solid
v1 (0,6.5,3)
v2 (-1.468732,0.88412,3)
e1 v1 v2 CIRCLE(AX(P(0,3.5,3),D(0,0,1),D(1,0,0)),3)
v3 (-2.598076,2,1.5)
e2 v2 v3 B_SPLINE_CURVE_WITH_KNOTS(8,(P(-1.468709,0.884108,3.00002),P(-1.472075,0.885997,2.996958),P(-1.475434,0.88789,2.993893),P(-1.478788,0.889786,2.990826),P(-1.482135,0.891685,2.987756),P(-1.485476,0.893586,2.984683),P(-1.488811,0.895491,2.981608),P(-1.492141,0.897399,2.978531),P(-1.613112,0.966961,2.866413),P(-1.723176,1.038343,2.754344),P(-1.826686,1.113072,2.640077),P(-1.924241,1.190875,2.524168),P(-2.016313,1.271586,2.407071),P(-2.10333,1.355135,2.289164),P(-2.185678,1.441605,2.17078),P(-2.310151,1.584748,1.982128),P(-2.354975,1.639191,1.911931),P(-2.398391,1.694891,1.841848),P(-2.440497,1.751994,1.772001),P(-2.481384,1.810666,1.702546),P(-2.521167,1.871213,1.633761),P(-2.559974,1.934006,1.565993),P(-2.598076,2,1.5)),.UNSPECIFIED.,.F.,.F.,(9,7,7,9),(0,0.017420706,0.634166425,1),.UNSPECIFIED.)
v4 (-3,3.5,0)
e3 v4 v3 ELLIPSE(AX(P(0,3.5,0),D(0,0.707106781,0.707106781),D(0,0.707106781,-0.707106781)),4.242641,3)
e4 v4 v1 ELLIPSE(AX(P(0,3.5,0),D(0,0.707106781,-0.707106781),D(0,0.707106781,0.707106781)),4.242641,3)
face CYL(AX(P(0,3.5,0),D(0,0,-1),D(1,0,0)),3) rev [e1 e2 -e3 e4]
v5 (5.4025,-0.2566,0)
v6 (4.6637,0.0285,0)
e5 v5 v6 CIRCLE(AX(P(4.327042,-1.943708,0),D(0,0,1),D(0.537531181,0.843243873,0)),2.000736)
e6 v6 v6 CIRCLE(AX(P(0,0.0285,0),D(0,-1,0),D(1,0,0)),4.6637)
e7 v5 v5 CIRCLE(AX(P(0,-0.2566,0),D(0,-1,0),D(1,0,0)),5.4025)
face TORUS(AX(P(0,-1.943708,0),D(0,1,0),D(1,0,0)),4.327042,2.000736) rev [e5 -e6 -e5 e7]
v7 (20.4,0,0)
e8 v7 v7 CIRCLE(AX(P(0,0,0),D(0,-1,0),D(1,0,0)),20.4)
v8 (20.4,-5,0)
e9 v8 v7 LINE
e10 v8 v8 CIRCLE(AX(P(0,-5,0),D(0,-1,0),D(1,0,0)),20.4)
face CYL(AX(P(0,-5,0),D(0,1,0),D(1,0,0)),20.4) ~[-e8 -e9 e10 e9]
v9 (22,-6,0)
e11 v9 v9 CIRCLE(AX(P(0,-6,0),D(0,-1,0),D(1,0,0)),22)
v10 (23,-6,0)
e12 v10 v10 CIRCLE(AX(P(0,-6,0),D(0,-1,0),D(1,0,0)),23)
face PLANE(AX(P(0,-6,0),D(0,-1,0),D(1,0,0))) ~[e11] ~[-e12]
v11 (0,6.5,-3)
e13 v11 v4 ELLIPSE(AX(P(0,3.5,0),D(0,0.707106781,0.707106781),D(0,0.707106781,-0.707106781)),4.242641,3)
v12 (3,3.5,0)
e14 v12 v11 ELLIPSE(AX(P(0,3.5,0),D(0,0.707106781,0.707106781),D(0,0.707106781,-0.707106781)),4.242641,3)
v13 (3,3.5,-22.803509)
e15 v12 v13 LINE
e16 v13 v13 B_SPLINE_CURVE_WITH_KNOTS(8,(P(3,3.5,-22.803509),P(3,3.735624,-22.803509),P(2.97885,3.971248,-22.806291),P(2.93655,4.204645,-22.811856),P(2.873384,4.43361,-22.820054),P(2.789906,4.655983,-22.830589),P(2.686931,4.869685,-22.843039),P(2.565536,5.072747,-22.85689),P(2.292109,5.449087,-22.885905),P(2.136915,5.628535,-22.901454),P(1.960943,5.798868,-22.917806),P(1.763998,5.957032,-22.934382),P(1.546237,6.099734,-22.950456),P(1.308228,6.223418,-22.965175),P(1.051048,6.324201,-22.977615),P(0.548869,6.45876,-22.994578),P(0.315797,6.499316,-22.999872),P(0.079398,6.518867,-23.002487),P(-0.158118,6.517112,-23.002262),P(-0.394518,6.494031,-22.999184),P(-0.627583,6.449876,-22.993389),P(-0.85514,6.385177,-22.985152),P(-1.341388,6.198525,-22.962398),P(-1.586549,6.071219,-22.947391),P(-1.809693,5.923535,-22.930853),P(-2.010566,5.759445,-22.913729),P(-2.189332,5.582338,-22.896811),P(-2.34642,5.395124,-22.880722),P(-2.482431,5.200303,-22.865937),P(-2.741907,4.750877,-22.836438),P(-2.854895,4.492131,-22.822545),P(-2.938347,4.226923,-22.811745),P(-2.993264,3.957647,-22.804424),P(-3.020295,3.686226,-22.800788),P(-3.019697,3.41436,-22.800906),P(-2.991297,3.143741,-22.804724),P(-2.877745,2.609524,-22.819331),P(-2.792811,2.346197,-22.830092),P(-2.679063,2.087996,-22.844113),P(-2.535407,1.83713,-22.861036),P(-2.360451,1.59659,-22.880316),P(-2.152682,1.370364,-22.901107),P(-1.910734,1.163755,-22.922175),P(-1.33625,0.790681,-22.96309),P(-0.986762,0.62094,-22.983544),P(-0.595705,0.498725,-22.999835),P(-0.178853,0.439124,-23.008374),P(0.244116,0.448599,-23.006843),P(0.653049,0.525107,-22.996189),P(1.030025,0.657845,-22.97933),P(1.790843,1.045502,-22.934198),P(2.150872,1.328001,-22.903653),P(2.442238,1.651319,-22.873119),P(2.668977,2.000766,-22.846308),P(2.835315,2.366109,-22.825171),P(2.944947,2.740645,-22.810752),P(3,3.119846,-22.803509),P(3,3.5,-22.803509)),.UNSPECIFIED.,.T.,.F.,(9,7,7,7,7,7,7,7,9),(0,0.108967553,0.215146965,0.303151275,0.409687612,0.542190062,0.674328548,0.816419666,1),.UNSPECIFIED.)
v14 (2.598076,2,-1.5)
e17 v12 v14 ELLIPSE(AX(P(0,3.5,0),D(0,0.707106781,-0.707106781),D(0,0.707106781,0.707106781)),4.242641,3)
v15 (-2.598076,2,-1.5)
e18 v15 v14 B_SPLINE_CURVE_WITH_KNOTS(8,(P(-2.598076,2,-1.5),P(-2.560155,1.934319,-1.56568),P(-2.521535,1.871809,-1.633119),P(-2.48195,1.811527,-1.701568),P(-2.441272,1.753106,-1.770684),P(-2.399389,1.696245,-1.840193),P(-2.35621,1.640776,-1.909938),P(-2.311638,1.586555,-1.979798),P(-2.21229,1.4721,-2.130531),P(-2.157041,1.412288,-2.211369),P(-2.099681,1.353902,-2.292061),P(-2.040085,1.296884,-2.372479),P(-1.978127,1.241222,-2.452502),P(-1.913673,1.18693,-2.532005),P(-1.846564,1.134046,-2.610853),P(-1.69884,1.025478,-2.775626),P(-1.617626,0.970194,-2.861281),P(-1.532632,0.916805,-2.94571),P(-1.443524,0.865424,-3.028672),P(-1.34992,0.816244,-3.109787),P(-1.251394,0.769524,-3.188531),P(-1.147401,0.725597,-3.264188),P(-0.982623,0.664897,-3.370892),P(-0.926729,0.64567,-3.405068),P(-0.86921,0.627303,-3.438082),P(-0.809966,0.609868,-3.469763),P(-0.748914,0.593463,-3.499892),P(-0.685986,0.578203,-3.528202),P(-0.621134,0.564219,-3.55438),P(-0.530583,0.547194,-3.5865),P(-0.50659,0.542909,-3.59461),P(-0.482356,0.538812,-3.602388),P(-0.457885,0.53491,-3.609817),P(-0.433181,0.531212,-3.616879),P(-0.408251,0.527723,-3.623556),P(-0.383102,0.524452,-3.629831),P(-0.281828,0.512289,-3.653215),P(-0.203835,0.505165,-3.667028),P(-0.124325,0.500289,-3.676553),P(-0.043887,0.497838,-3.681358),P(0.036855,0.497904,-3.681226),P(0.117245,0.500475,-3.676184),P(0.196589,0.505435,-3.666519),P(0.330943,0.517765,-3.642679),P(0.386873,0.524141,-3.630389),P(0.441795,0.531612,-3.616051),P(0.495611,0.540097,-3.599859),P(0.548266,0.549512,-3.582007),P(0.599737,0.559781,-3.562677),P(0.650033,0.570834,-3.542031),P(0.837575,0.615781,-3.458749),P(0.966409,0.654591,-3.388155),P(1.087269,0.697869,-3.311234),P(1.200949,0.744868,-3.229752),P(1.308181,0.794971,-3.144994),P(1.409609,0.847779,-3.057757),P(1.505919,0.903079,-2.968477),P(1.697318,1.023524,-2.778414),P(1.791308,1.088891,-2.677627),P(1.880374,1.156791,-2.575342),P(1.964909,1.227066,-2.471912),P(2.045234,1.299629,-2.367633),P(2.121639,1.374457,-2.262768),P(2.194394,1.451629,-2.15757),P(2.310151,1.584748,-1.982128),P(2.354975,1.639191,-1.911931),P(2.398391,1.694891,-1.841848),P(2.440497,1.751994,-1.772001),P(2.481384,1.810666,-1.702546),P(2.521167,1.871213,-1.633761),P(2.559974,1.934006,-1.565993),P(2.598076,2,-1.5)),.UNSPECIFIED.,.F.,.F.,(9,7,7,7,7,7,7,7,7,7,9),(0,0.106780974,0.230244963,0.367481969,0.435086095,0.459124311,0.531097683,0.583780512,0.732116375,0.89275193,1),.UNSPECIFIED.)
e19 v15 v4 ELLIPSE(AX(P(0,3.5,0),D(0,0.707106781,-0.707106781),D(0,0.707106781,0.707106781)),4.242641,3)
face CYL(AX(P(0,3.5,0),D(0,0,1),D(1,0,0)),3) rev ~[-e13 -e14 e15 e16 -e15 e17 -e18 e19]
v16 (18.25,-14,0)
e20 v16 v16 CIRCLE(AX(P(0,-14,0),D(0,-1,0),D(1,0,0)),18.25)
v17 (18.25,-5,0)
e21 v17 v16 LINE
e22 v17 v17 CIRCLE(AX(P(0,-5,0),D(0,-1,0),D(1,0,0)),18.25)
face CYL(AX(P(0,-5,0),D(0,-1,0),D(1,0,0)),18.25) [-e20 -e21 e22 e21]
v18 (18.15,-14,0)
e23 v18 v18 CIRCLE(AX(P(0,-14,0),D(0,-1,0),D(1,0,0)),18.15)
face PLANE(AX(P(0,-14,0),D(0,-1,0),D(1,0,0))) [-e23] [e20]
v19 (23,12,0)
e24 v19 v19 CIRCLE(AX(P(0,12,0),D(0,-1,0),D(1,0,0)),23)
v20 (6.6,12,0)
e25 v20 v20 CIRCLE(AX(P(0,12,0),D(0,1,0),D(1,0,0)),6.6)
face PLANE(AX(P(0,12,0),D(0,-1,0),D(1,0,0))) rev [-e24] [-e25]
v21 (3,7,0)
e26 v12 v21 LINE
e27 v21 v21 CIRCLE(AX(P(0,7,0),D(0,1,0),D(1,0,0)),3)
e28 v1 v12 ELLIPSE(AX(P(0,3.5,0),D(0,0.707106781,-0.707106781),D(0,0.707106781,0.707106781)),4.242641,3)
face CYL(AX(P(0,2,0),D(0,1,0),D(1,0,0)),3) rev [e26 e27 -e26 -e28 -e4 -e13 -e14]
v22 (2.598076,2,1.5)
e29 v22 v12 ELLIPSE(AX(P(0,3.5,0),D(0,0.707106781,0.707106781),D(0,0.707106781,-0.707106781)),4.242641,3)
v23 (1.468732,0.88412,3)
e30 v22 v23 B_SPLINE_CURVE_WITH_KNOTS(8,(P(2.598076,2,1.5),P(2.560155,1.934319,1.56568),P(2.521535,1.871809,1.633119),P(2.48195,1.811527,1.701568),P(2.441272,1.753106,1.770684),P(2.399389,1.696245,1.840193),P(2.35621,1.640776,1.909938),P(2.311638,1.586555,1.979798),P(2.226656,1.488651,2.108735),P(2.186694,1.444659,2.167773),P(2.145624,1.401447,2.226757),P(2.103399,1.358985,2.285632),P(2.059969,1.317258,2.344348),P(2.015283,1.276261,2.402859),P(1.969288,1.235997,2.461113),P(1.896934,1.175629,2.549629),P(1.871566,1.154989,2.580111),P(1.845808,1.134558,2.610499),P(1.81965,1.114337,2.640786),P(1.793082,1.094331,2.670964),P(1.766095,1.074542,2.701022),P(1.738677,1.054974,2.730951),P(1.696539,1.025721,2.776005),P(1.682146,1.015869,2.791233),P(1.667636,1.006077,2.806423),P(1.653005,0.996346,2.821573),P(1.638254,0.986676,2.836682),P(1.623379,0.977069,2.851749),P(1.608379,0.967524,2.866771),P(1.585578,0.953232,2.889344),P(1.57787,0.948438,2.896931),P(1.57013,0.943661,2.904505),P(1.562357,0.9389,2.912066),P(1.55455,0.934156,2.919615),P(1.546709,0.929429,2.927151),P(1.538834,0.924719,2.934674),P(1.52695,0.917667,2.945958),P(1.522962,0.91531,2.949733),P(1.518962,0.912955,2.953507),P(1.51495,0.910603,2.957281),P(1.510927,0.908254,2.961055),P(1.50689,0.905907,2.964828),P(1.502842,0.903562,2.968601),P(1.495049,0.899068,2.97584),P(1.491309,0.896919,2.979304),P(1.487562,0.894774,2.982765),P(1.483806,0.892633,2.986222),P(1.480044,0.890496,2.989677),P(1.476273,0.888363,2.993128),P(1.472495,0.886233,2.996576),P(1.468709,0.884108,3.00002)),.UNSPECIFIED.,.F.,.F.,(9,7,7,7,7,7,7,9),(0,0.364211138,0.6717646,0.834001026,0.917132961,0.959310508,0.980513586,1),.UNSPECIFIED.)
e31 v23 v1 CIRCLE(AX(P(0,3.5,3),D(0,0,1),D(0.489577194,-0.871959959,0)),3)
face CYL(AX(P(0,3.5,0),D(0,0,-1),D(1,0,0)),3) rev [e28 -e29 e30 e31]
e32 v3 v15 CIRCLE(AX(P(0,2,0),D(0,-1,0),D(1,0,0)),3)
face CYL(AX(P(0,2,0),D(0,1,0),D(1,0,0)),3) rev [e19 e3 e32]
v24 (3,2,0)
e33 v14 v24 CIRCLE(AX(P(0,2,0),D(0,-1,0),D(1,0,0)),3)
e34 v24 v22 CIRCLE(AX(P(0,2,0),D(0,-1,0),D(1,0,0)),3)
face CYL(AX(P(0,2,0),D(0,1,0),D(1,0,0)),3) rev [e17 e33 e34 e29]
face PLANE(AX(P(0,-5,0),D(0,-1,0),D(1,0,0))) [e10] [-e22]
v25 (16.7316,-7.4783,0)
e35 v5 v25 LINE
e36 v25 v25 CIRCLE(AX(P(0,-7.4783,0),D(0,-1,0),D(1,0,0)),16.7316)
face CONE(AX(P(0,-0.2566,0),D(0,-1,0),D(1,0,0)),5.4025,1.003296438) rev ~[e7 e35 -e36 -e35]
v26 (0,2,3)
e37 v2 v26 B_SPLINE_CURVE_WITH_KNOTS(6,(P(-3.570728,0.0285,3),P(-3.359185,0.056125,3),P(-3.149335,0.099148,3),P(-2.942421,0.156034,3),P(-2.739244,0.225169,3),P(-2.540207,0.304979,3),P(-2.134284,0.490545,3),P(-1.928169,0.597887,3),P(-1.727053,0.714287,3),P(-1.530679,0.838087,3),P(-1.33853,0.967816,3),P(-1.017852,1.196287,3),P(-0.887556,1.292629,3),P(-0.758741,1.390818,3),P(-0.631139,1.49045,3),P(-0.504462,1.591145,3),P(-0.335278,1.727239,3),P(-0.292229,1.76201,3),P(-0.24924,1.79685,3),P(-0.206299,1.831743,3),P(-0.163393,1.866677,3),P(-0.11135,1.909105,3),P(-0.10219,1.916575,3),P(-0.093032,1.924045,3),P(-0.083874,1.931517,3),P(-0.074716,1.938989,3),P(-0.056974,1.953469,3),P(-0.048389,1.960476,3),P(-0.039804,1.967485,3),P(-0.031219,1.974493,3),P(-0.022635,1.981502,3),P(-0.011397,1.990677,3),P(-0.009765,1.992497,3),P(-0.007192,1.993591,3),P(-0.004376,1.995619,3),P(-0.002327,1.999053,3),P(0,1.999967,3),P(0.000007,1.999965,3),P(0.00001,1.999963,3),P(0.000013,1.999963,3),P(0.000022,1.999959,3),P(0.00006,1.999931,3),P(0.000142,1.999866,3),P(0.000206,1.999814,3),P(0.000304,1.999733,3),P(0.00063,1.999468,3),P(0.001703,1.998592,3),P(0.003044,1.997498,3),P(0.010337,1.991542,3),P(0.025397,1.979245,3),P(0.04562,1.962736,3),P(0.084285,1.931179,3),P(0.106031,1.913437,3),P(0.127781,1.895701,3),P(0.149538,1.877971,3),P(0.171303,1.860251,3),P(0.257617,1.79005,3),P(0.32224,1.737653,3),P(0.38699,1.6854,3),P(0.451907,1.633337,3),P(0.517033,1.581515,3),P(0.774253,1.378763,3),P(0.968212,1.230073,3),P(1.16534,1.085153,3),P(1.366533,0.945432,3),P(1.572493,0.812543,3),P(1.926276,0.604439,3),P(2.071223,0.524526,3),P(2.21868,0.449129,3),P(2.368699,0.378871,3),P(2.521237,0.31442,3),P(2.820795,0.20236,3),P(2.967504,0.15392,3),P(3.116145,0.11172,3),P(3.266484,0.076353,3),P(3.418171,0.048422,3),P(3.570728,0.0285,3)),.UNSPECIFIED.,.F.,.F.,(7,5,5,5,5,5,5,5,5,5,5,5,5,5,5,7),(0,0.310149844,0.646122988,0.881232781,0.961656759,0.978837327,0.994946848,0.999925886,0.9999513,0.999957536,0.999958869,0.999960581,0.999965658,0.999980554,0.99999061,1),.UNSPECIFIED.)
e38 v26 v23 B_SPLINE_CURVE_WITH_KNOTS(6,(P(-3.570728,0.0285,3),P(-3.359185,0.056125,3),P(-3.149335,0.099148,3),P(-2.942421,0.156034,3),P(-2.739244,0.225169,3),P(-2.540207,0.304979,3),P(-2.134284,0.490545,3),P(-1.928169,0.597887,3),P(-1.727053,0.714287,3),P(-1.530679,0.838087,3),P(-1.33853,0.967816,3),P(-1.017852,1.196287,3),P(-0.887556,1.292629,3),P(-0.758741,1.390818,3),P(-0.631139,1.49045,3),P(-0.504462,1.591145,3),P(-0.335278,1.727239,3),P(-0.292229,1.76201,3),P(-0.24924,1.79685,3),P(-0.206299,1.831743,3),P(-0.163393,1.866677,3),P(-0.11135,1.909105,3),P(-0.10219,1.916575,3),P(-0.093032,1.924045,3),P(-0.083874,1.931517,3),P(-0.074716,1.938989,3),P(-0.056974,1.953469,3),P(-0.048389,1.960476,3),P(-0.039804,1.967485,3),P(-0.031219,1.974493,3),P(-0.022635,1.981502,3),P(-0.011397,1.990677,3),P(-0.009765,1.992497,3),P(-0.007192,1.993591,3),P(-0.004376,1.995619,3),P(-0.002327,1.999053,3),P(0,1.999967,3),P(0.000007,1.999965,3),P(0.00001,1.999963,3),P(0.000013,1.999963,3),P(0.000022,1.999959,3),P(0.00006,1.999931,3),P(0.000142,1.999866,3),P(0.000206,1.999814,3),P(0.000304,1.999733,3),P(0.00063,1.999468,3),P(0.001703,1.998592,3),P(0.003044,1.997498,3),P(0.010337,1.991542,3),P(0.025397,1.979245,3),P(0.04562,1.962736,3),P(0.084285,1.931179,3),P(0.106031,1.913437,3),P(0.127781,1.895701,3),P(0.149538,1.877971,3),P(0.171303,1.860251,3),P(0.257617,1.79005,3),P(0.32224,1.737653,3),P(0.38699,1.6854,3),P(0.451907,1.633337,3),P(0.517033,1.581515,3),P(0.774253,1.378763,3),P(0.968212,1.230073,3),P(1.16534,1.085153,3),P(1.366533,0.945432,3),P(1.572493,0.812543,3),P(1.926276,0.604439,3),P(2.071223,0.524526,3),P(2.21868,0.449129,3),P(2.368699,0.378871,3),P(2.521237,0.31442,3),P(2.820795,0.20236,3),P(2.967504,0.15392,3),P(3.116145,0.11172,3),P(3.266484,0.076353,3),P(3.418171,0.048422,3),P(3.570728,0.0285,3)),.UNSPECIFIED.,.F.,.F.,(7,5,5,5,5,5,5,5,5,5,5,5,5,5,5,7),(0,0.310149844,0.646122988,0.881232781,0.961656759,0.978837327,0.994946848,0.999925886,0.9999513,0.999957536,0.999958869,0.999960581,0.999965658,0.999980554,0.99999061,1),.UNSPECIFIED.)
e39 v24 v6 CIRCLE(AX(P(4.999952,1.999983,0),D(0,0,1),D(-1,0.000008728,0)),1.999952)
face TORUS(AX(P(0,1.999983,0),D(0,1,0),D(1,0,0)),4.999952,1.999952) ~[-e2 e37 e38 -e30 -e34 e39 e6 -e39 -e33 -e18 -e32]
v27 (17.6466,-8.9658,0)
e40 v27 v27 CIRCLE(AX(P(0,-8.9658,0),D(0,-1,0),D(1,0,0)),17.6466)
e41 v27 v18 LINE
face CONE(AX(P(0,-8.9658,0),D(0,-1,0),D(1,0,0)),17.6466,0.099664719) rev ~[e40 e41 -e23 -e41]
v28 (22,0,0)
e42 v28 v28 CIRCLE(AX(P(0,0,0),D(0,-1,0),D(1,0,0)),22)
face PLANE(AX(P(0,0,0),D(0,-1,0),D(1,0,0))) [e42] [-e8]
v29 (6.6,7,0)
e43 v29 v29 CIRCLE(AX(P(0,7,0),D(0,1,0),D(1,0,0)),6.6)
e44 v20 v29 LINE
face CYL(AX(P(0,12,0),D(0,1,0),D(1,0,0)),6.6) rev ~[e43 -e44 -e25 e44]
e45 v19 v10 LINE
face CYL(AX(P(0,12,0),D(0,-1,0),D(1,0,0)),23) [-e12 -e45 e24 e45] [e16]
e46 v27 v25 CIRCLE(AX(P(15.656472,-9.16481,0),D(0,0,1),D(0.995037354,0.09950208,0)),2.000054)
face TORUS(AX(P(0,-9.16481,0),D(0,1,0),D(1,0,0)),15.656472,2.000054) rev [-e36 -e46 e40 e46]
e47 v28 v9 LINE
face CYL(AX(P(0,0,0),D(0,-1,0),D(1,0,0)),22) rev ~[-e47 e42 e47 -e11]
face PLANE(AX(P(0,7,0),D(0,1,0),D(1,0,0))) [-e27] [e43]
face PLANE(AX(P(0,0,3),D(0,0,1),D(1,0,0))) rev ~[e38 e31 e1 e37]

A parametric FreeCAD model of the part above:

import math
import FreeCAD as App
import Part
import Sketcher
from FreeCAD import Vector
Q = App.Units.Quantity

doc = App.newDocument("Part")
params = doc.addObject("Spreadsheet::Sheet", "Params")
for row, (alias, value) in enumerate([
    ("sketch1_radius", "2 mm"),
    ("sketch1_width", "1 mm"),
    ("sketch1_height", "9 mm"),
    ("sketch1_height2", "5 mm"),
    ("sketch1_height3", "6 mm"),
    ("revolution_angle", "360 deg"),
    ("sketch2_diameter", "6 mm"),
    ("pocket1_length", "3 mm"),
    ("pocket1_length2", "33 mm"),
    ("sketch3_diameter", "13.2 mm"),
    ("pocket2_length", "5 mm"),
], start=1):
    params.set(f"A{row}", alias)
    params.set(f"B{row}", "=" + value)
    params.setAlias(f"B{row}", alias)

body = doc.addObject("PartDesign::Body", "Body")

sketch1 = body.newObject("Sketcher::SketchObject", "Sketch")
sketch1.AttachmentSupport = (doc.getObject("XY_Plane"), [""])
sketch1.MapMode = "FlatFace"
sketch1.addGeometry(Part.LineSegment(Vector(23, 12, 0), Vector(3, 12, 0)), False)
sketch1.addGeometry(Part.LineSegment(Vector(3, 12, 0), Vector(3, 2, 0)), False)
sketch1.addGeometry(Part.ArcOfCircle(Part.Circle(Vector(5, 2, 0), Vector(0, 0, 1), 2), math.radians(180), math.radians(260)), False)
sketch1.addGeometry(Part.ArcOfCircle(Part.Circle(Vector(4.33, -1.94, 0), Vector(0, 0, 1), 2), math.radians(57), math.radians(80)), False)
sketch1.addGeometry(Part.LineSegment(Vector(5.4, -0.26, 0), Vector(16.73, -7.48, 0)), False)
sketch1.addGeometry(Part.ArcOfCircle(Part.Circle(Vector(15.66, -9.16, 0), Vector(0, 0, 1), 2), math.radians(6), math.radians(57)), False)
sketch1.addGeometry(Part.LineSegment(Vector(17.65, -8.97, 0), Vector(18.15, -14, 0)), False)
sketch1.addGeometry(Part.LineSegment(Vector(18.15, -14, 0), Vector(18.25, -14, 0)), False)
sketch1.addGeometry(Part.LineSegment(Vector(18.25, -14, 0), Vector(18.25, -5, 0)), False)
sketch1.addGeometry(Part.LineSegment(Vector(18.25, -5, 0), Vector(20.4, -5, 0)), False)
sketch1.addGeometry(Part.LineSegment(Vector(20.4, -5, 0), Vector(20.4, 0, 0)), False)
sketch1.addGeometry(Part.LineSegment(Vector(20.4, 0, 0), Vector(22, 0, 0)), False)
sketch1.addGeometry(Part.LineSegment(Vector(22, 0, 0), Vector(22, -6, 0)), False)
sketch1.addGeometry(Part.LineSegment(Vector(22, -6, 0), Vector(23, -6, 0)), False)
sketch1.addGeometry(Part.LineSegment(Vector(23, -6, 0), Vector(23, 12, 0)), False)
sketch1.addConstraint(Sketcher.Constraint("Coincident", 0, 2, 1, 1))
sketch1.addConstraint(Sketcher.Constraint("Tangent", 1, 2, 2, 1))
sketch1.addConstraint(Sketcher.Constraint("Tangent", 2, 2, 3, 2))
sketch1.addConstraint(Sketcher.Constraint("Tangent", 3, 1, 4, 1))
sketch1.addConstraint(Sketcher.Constraint("Tangent", 4, 2, 5, 2))
sketch1.addConstraint(Sketcher.Constraint("Tangent", 5, 1, 6, 1))
sketch1.addConstraint(Sketcher.Constraint("Coincident", 6, 2, 7, 1))
sketch1.addConstraint(Sketcher.Constraint("Coincident", 7, 2, 8, 1))
sketch1.addConstraint(Sketcher.Constraint("Coincident", 8, 2, 9, 1))
sketch1.addConstraint(Sketcher.Constraint("Coincident", 9, 2, 10, 1))
sketch1.addConstraint(Sketcher.Constraint("Coincident", 10, 2, 11, 1))
sketch1.addConstraint(Sketcher.Constraint("Coincident", 11, 2, 12, 1))
sketch1.addConstraint(Sketcher.Constraint("Coincident", 12, 2, 13, 1))
sketch1.addConstraint(Sketcher.Constraint("Coincident", 13, 2, 14, 1))
sketch1.addConstraint(Sketcher.Constraint("Coincident", 14, 2, 0, 1))
sketch1.addConstraint(Sketcher.Constraint("Horizontal", 0))
sketch1.addConstraint(Sketcher.Constraint("Vertical", 1))
sketch1.addConstraint(Sketcher.Constraint("Horizontal", 7))
sketch1.addConstraint(Sketcher.Constraint("Vertical", 8))
sketch1.addConstraint(Sketcher.Constraint("Horizontal", 9))
sketch1.addConstraint(Sketcher.Constraint("Vertical", 10))
sketch1.addConstraint(Sketcher.Constraint("Horizontal", 11))
sketch1.addConstraint(Sketcher.Constraint("Vertical", 12))
sketch1.addConstraint(Sketcher.Constraint("Horizontal", 13))
sketch1.addConstraint(Sketcher.Constraint("Vertical", 14))
sketch1.addConstraint(Sketcher.Constraint("Equal", 2, 3))
sketch1.addConstraint(Sketcher.Constraint("Equal", 3, 5))
sketch1.addConstraint(Sketcher.Constraint("PointOnObject", 10, 2, -1))
sketch1.addConstraint(Sketcher.Constraint("Radius", 2, Q("2 mm")))
sketch1.addConstraint(Sketcher.Constraint("DistanceX", 13, 1, 13, 2, Q("1 mm")))
sketch1.addConstraint(Sketcher.Constraint("DistanceY", 8, 1, 8, 2, Q("9 mm")))
sketch1.addConstraint(Sketcher.Constraint("DistanceY", 10, 1, 10, 2, Q("5 mm")))
sketch1.addConstraint(Sketcher.Constraint("DistanceY", 12, 2, 12, 1, Q("6 mm")))
sketch1.addConstraint(Sketcher.Constraint("DistanceX", 7, 1, 7, 2, Q("0.1 mm")))
sketch1.addConstraint(Sketcher.Constraint("DistanceX", 11, 1, 11, 2, Q("1.6 mm")))
sketch1.addConstraint(Sketcher.Constraint("DistanceX", -1, 1, 2, 3, Q("5 mm")))
sketch1.addConstraint(Sketcher.Constraint("DistanceY", -1, 1, 2, 3, Q("2 mm")))
sketch1.addConstraint(Sketcher.Constraint("DistanceY", -1, 1, 0, 2, Q("12 mm")))
sketch1.addConstraint(Sketcher.Constraint("DistanceX", 0, 2, 0, 1, Q("20 mm")))
sketch1.addConstraint(Sketcher.Constraint("DistanceX", 9, 1, 9, 2, Q("2.15 mm")))
sketch1.addConstraint(Sketcher.Constraint("Angle", 6, Q("-84.2896 deg")))
sketch1.addConstraint(Sketcher.Constraint("Distance", 4, Q("13.435 mm")))
sketch1.addConstraint(Sketcher.Constraint("DistanceY", 3, 3, -1, 1, Q("1.943 mm")))
sketch1.setExpression("Constraints[28]", "Params.sketch1_radius")
sketch1.setExpression("Constraints[29]", "Params.sketch1_width")
sketch1.setExpression("Constraints[30]", "Params.sketch1_height")
sketch1.setExpression("Constraints[31]", "Params.sketch1_height2")
sketch1.setExpression("Constraints[32]", "Params.sketch1_height3")
revolution = body.newObject("PartDesign::Revolution", "Revolution")
revolution.Profile = sketch1
revolution.ReferenceAxis = (sketch1, ["V_Axis"])
revolution.setExpression("Angle", "Params.revolution_angle")

sketch2 = body.newObject("Sketcher::SketchObject", "Sketch001")
sketch2.AttachmentSupport = (doc.getObject("XY_Plane"), [""])
sketch2.MapMode = "FlatFace"
sketch2.addGeometry(Part.Circle(Vector(0, 3.5, 0), Vector(0, 0, 1), 3), False)
sketch2.addConstraint(Sketcher.Constraint("PointOnObject", 0, 3, -2))
sketch2.addConstraint(Sketcher.Constraint("Diameter", 0, Q("6 mm")))
sketch2.addConstraint(Sketcher.Constraint("DistanceY", -1, 1, 0, 3, Q("3.5 mm")))
sketch2.setExpression("Constraints[1]", "Params.sketch2_diameter")
pocket1 = body.newObject("PartDesign::Pocket", "Pocket")
pocket1.Profile = sketch2
pocket1.Type = "TwoLengths"
pocket1.setExpression("Length", "Params.pocket1_length")
pocket1.setExpression("Length2", "Params.pocket1_length2")
pocket1.Reversed = True

sketch3 = body.newObject("Sketcher::SketchObject", "Sketch002")
sketch3.AttachmentSupport = (doc.getObject("XZ_Plane"), [""])
sketch3.MapMode = "FlatFace"
sketch3.AttachmentOffset = App.Placement(Vector(0, 0, -12), App.Rotation())
sketch3.addGeometry(Part.Circle(Vector(0, 0, 0), Vector(0, 0, 1), 7), False)
sketch3.addConstraint(Sketcher.Constraint("Coincident", 0, 3, -1, 1))
sketch3.addConstraint(Sketcher.Constraint("Diameter", 0, Q("13.2 mm")))
sketch3.setExpression("Constraints[1]", "Params.sketch3_diameter")
pocket2 = body.newObject("PartDesign::Pocket", "Pocket001")
pocket2.Profile = sketch3
pocket2.setExpression("Length", "Params.pocket2_length")
pocket2.Reversed = True

doc.recompute()
